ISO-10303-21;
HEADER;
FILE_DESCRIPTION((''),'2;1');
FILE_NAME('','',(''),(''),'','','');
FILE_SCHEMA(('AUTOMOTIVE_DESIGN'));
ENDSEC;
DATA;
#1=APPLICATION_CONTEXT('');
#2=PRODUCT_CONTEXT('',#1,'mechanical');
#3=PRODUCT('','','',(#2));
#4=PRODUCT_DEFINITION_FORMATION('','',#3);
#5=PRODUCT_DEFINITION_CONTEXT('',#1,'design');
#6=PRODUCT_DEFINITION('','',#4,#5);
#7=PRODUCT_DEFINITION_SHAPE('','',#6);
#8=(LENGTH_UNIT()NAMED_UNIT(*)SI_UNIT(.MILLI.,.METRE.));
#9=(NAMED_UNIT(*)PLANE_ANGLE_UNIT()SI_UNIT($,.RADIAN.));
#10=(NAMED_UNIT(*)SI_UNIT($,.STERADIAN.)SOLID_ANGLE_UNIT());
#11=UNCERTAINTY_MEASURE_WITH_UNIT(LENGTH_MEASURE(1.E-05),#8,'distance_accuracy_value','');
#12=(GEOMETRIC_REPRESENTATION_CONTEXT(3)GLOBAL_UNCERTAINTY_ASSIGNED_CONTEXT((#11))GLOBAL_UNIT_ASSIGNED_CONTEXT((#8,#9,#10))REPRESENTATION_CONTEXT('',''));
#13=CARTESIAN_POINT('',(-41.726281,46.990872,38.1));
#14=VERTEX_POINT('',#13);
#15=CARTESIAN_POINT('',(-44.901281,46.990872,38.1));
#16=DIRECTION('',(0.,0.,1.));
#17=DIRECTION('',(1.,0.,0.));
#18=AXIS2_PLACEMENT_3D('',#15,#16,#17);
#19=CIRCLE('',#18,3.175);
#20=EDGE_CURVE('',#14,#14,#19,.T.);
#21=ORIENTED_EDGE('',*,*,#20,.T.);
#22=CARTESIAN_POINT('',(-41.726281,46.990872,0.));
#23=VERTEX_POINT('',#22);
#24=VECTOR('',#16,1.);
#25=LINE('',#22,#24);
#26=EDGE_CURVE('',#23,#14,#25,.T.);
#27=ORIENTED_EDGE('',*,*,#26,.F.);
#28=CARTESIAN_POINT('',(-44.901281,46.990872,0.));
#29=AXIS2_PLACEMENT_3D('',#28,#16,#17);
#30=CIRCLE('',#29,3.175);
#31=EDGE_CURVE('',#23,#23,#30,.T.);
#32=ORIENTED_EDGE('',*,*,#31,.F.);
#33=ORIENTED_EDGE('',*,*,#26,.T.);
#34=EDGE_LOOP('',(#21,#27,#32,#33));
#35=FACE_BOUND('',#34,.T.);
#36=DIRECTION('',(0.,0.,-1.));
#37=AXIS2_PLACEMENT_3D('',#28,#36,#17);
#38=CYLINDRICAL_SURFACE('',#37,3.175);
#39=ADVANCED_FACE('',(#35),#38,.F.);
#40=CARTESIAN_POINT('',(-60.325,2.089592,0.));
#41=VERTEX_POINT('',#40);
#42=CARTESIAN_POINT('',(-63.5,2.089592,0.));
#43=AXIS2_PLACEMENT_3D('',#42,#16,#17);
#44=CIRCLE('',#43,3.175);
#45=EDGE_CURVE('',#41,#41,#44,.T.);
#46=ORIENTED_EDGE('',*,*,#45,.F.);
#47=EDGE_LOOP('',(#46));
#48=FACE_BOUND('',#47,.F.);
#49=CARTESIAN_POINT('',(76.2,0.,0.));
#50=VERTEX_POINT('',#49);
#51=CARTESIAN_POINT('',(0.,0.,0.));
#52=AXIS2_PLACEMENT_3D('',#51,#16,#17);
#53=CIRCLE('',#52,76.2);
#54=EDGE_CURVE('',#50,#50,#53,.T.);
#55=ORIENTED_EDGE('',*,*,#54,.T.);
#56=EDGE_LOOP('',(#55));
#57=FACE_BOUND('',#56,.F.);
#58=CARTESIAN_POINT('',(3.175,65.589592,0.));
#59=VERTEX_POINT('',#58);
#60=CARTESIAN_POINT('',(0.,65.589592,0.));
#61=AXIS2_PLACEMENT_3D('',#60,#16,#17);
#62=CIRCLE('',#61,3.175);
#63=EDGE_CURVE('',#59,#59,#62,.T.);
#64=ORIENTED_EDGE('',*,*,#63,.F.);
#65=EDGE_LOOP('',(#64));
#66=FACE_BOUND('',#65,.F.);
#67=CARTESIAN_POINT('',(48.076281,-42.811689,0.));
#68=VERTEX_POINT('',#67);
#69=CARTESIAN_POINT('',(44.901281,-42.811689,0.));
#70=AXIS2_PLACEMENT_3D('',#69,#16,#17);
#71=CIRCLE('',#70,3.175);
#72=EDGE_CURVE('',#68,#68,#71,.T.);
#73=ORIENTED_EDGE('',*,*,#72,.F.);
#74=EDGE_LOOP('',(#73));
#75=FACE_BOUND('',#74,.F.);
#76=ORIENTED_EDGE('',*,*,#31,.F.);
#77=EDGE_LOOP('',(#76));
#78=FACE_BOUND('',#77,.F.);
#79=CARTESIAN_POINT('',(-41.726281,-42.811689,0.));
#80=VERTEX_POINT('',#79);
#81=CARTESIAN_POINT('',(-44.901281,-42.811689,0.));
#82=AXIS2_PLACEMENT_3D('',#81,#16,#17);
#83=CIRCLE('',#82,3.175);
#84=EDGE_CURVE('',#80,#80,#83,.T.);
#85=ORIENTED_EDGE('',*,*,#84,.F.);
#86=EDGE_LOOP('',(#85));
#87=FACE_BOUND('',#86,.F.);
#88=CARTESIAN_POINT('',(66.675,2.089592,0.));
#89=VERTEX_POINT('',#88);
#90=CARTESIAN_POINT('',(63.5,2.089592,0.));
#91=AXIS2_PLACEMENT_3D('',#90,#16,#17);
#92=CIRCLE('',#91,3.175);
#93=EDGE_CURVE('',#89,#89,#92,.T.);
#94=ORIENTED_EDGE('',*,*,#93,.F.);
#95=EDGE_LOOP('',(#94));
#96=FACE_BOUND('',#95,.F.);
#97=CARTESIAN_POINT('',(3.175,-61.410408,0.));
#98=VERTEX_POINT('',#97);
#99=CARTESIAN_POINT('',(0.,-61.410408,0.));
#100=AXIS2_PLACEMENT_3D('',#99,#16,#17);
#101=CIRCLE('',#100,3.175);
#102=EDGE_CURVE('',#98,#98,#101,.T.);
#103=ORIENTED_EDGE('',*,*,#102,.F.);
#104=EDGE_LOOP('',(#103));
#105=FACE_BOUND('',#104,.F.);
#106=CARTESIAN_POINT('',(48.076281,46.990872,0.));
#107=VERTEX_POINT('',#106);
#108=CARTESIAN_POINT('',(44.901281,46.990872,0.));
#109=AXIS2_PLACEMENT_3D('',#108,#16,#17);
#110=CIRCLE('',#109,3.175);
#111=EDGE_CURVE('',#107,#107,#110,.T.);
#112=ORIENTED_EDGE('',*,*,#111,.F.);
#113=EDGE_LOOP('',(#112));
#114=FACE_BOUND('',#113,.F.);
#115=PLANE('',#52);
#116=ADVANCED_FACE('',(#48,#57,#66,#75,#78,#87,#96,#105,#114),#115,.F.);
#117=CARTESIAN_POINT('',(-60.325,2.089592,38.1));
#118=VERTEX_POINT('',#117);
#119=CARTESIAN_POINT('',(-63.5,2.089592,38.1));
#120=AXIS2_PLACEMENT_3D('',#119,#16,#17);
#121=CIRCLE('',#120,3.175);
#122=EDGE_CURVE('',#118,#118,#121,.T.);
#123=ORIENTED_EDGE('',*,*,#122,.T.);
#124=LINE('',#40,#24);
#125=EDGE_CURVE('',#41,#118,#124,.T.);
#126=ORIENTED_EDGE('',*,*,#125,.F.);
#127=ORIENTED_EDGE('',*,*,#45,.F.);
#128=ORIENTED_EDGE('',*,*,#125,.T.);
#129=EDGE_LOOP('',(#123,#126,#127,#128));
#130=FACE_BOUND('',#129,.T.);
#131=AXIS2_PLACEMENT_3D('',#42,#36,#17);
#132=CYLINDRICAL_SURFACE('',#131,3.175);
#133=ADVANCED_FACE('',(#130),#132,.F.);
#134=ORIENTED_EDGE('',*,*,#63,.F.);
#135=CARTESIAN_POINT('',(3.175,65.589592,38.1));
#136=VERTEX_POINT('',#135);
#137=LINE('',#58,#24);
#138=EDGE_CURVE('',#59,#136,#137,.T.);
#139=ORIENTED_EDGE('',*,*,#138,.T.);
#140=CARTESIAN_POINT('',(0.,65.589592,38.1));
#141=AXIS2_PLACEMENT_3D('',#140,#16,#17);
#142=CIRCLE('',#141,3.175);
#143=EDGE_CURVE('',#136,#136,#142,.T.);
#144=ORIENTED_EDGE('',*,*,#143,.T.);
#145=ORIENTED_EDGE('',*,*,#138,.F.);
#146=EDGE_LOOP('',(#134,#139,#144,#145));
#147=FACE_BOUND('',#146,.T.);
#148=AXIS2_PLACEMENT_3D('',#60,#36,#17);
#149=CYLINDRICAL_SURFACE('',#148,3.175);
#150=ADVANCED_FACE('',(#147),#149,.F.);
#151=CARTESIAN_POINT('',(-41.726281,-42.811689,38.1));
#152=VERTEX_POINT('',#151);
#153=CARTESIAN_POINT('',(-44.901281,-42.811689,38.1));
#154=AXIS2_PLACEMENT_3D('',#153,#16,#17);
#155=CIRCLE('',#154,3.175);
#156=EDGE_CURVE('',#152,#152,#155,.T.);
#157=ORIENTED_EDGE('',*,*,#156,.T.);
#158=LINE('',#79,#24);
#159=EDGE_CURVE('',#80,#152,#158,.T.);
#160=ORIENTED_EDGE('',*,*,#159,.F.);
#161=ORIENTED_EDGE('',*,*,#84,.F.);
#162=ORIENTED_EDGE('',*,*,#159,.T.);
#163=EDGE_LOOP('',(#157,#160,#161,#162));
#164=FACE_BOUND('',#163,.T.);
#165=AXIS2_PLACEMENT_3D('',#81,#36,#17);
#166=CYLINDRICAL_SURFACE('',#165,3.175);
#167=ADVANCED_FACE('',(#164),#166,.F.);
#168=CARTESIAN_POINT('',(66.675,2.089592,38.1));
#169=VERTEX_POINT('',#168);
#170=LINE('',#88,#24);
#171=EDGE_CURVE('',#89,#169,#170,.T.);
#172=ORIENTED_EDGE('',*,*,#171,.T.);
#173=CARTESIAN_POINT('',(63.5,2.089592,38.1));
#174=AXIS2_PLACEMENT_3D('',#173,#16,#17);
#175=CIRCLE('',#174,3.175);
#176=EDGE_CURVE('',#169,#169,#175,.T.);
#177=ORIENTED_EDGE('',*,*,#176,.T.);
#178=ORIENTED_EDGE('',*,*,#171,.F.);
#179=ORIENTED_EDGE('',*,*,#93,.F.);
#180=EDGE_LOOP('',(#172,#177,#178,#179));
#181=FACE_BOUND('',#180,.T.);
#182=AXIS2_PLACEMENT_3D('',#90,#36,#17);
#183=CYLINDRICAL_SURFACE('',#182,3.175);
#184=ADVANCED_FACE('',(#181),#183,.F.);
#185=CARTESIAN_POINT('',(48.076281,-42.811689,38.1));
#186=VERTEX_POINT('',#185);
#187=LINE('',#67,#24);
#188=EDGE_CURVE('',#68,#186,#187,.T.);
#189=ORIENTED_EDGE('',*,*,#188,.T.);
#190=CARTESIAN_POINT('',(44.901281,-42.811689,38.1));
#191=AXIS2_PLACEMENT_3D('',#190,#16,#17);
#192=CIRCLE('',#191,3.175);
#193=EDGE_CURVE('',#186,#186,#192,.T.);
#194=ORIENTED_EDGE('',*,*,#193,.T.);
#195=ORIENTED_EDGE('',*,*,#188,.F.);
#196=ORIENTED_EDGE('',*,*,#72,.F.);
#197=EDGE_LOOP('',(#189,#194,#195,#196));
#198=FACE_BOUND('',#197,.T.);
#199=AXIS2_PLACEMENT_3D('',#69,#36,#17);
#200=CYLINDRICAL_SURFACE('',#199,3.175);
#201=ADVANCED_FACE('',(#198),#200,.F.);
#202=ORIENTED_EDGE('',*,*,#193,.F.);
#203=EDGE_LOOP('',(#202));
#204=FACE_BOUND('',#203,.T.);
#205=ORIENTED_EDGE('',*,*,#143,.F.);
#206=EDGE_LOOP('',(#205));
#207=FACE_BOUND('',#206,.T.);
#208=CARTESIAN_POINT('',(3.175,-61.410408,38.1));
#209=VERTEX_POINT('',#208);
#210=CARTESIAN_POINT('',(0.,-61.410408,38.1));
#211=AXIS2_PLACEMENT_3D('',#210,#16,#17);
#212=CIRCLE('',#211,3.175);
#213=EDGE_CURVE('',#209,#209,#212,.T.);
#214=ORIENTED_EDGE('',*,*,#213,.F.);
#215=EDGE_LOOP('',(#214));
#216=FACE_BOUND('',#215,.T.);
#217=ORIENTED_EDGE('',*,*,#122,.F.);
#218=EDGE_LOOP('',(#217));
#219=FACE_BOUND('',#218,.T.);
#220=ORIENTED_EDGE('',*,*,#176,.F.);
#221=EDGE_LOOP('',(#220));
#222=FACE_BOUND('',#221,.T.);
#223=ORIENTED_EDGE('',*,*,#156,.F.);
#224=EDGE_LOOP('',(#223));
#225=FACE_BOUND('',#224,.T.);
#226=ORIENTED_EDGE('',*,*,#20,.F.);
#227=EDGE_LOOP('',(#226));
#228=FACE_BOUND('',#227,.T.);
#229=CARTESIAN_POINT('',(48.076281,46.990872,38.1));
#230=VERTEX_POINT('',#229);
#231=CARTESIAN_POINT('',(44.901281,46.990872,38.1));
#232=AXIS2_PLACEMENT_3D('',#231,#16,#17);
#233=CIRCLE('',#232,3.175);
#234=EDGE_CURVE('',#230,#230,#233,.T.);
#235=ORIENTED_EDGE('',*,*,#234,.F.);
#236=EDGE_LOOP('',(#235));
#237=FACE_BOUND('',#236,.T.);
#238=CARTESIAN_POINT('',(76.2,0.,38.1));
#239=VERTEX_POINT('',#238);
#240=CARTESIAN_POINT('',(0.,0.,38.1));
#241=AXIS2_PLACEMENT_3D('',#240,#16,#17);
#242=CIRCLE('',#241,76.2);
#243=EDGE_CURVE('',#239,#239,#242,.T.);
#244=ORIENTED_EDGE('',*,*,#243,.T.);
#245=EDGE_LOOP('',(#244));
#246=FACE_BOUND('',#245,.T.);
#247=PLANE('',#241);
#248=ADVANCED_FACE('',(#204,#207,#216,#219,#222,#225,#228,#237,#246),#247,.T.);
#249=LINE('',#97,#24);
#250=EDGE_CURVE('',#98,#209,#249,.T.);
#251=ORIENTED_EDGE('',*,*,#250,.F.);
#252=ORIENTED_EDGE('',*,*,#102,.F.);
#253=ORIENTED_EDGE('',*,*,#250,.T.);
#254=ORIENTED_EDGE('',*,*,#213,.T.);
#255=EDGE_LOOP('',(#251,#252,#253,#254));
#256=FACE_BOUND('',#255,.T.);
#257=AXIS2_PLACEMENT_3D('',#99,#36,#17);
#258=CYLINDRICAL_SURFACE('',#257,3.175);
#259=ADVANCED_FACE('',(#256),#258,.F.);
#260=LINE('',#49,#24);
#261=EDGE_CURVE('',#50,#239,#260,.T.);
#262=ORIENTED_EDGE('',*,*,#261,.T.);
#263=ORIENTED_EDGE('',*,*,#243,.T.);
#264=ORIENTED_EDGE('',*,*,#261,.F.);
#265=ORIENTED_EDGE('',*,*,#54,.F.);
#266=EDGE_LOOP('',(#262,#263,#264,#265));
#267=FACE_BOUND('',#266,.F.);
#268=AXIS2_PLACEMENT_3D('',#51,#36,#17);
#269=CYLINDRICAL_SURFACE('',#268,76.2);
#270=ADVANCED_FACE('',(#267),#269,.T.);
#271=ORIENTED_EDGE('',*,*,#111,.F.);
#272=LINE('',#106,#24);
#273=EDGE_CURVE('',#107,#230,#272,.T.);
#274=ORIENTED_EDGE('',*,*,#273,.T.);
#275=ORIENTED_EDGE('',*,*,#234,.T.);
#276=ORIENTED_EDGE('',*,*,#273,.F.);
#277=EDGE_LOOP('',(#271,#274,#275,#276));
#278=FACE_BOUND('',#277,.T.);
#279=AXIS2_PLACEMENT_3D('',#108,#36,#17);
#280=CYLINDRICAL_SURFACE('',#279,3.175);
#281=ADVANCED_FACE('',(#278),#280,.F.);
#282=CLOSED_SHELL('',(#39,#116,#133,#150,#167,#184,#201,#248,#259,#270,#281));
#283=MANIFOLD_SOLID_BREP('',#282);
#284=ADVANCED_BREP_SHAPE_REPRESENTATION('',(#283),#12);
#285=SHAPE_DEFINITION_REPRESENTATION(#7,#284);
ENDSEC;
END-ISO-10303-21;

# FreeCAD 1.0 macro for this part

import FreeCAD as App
import Part
import Sketcher
from FreeCAD import Vector
Q = App.Units.Quantity

doc = App.newDocument("Part")
body = doc.addObject("PartDesign::Body", "Body")

# Sketch on XY plane
sketch1 = doc.addObject("Sketcher::SketchObject", "Sketch")
body.addObject(sketch1)
sketch1.AttachmentSupport = (doc.XY_Plane, [""])
sketch1.MapMode = "FlatFace"
sketch1.addGeometry([
    Part.Circle(Vector(0, 0, 0), Vector(0, 0, 1), 76.2),  # 0
    Part.Circle(Vector(-44.9, -42.8, 0), Vector(0, 0, 1), 3.2),  # 1
    Part.Circle(Vector(0, -61.4, 0), Vector(0, 0, 1), 3.2),  # 2
    Part.Circle(Vector(44.9, -42.8, 0), Vector(0, 0, 1), 3.2),  # 3
    Part.Circle(Vector(-63.5, 2.1, 0), Vector(0, 0, 1), 3.2),  # 4
    Part.Circle(Vector(-44.9, 47, 0), Vector(0, 0, 1), 3.2),  # 5
    Part.Circle(Vector(63.5, 2.1, 0), Vector(0, 0, 1), 3.2),  # 6
    Part.Circle(Vector(0, 65.6, 0), Vector(0, 0, 1), 3.2),  # 7
    Part.Circle(Vector(44.9, 47, 0), Vector(0, 0, 1), 3.2),  # 8
], False)
sketch1.addConstraint([
    Sketcher.Constraint("Coincident", 0, 3, -1, 1),
    Sketcher.Constraint("Equal", 1, 2),
    Sketcher.Constraint("Equal", 2, 3),
    Sketcher.Constraint("Equal", 3, 4),
    Sketcher.Constraint("Equal", 4, 5),
    Sketcher.Constraint("Equal", 5, 6),
    Sketcher.Constraint("Equal", 6, 7),
    Sketcher.Constraint("Equal", 7, 8),
    Sketcher.Constraint("Symmetric", 1, 3, 3, 3, -2),
    Sketcher.Constraint("Symmetric", 4, 3, 6, 3, -2),
    Sketcher.Constraint("Symmetric", 5, 3, 8, 3, -2),
    Sketcher.Constraint("PointOnObject", 2, 3, -2),
    Sketcher.Constraint("PointOnObject", 7, 3, -2),
    Sketcher.Constraint("Vertical", 1, 3, 5, 3),
    Sketcher.Constraint("Diameter", 0, Q("6 in")),
    Sketcher.Constraint("Diameter", 1, Q("0.25 in")),
    Sketcher.Constraint("DistanceX", 4, 3, -1, 1, Q("2.5 in")),
    Sketcher.Constraint("DistanceY", 2, 3, 4, 3, Q("2.5 in")),
    Sketcher.Constraint("DistanceY", 4, 3, 7, 3, Q("2.5 in")),
    Sketcher.Constraint("DistanceX", 1, 3, -1, 1, 44.901281),
    Sketcher.Constraint("DistanceY", 1, 3, -1, 1, 42.811689),
    Sketcher.Constraint("DistanceY", -1, 1, 7, 3, 65.589592),
    Sketcher.Constraint("DistanceY", 4, 3, 5, 3, 44.90128),
])
pad1 = doc.addObject("PartDesign::Pad", "Pad")
body.addObject(pad1)
pad1.Profile = sketch1
pad1.Length = Q("1.5 in")

doc.recompute()
